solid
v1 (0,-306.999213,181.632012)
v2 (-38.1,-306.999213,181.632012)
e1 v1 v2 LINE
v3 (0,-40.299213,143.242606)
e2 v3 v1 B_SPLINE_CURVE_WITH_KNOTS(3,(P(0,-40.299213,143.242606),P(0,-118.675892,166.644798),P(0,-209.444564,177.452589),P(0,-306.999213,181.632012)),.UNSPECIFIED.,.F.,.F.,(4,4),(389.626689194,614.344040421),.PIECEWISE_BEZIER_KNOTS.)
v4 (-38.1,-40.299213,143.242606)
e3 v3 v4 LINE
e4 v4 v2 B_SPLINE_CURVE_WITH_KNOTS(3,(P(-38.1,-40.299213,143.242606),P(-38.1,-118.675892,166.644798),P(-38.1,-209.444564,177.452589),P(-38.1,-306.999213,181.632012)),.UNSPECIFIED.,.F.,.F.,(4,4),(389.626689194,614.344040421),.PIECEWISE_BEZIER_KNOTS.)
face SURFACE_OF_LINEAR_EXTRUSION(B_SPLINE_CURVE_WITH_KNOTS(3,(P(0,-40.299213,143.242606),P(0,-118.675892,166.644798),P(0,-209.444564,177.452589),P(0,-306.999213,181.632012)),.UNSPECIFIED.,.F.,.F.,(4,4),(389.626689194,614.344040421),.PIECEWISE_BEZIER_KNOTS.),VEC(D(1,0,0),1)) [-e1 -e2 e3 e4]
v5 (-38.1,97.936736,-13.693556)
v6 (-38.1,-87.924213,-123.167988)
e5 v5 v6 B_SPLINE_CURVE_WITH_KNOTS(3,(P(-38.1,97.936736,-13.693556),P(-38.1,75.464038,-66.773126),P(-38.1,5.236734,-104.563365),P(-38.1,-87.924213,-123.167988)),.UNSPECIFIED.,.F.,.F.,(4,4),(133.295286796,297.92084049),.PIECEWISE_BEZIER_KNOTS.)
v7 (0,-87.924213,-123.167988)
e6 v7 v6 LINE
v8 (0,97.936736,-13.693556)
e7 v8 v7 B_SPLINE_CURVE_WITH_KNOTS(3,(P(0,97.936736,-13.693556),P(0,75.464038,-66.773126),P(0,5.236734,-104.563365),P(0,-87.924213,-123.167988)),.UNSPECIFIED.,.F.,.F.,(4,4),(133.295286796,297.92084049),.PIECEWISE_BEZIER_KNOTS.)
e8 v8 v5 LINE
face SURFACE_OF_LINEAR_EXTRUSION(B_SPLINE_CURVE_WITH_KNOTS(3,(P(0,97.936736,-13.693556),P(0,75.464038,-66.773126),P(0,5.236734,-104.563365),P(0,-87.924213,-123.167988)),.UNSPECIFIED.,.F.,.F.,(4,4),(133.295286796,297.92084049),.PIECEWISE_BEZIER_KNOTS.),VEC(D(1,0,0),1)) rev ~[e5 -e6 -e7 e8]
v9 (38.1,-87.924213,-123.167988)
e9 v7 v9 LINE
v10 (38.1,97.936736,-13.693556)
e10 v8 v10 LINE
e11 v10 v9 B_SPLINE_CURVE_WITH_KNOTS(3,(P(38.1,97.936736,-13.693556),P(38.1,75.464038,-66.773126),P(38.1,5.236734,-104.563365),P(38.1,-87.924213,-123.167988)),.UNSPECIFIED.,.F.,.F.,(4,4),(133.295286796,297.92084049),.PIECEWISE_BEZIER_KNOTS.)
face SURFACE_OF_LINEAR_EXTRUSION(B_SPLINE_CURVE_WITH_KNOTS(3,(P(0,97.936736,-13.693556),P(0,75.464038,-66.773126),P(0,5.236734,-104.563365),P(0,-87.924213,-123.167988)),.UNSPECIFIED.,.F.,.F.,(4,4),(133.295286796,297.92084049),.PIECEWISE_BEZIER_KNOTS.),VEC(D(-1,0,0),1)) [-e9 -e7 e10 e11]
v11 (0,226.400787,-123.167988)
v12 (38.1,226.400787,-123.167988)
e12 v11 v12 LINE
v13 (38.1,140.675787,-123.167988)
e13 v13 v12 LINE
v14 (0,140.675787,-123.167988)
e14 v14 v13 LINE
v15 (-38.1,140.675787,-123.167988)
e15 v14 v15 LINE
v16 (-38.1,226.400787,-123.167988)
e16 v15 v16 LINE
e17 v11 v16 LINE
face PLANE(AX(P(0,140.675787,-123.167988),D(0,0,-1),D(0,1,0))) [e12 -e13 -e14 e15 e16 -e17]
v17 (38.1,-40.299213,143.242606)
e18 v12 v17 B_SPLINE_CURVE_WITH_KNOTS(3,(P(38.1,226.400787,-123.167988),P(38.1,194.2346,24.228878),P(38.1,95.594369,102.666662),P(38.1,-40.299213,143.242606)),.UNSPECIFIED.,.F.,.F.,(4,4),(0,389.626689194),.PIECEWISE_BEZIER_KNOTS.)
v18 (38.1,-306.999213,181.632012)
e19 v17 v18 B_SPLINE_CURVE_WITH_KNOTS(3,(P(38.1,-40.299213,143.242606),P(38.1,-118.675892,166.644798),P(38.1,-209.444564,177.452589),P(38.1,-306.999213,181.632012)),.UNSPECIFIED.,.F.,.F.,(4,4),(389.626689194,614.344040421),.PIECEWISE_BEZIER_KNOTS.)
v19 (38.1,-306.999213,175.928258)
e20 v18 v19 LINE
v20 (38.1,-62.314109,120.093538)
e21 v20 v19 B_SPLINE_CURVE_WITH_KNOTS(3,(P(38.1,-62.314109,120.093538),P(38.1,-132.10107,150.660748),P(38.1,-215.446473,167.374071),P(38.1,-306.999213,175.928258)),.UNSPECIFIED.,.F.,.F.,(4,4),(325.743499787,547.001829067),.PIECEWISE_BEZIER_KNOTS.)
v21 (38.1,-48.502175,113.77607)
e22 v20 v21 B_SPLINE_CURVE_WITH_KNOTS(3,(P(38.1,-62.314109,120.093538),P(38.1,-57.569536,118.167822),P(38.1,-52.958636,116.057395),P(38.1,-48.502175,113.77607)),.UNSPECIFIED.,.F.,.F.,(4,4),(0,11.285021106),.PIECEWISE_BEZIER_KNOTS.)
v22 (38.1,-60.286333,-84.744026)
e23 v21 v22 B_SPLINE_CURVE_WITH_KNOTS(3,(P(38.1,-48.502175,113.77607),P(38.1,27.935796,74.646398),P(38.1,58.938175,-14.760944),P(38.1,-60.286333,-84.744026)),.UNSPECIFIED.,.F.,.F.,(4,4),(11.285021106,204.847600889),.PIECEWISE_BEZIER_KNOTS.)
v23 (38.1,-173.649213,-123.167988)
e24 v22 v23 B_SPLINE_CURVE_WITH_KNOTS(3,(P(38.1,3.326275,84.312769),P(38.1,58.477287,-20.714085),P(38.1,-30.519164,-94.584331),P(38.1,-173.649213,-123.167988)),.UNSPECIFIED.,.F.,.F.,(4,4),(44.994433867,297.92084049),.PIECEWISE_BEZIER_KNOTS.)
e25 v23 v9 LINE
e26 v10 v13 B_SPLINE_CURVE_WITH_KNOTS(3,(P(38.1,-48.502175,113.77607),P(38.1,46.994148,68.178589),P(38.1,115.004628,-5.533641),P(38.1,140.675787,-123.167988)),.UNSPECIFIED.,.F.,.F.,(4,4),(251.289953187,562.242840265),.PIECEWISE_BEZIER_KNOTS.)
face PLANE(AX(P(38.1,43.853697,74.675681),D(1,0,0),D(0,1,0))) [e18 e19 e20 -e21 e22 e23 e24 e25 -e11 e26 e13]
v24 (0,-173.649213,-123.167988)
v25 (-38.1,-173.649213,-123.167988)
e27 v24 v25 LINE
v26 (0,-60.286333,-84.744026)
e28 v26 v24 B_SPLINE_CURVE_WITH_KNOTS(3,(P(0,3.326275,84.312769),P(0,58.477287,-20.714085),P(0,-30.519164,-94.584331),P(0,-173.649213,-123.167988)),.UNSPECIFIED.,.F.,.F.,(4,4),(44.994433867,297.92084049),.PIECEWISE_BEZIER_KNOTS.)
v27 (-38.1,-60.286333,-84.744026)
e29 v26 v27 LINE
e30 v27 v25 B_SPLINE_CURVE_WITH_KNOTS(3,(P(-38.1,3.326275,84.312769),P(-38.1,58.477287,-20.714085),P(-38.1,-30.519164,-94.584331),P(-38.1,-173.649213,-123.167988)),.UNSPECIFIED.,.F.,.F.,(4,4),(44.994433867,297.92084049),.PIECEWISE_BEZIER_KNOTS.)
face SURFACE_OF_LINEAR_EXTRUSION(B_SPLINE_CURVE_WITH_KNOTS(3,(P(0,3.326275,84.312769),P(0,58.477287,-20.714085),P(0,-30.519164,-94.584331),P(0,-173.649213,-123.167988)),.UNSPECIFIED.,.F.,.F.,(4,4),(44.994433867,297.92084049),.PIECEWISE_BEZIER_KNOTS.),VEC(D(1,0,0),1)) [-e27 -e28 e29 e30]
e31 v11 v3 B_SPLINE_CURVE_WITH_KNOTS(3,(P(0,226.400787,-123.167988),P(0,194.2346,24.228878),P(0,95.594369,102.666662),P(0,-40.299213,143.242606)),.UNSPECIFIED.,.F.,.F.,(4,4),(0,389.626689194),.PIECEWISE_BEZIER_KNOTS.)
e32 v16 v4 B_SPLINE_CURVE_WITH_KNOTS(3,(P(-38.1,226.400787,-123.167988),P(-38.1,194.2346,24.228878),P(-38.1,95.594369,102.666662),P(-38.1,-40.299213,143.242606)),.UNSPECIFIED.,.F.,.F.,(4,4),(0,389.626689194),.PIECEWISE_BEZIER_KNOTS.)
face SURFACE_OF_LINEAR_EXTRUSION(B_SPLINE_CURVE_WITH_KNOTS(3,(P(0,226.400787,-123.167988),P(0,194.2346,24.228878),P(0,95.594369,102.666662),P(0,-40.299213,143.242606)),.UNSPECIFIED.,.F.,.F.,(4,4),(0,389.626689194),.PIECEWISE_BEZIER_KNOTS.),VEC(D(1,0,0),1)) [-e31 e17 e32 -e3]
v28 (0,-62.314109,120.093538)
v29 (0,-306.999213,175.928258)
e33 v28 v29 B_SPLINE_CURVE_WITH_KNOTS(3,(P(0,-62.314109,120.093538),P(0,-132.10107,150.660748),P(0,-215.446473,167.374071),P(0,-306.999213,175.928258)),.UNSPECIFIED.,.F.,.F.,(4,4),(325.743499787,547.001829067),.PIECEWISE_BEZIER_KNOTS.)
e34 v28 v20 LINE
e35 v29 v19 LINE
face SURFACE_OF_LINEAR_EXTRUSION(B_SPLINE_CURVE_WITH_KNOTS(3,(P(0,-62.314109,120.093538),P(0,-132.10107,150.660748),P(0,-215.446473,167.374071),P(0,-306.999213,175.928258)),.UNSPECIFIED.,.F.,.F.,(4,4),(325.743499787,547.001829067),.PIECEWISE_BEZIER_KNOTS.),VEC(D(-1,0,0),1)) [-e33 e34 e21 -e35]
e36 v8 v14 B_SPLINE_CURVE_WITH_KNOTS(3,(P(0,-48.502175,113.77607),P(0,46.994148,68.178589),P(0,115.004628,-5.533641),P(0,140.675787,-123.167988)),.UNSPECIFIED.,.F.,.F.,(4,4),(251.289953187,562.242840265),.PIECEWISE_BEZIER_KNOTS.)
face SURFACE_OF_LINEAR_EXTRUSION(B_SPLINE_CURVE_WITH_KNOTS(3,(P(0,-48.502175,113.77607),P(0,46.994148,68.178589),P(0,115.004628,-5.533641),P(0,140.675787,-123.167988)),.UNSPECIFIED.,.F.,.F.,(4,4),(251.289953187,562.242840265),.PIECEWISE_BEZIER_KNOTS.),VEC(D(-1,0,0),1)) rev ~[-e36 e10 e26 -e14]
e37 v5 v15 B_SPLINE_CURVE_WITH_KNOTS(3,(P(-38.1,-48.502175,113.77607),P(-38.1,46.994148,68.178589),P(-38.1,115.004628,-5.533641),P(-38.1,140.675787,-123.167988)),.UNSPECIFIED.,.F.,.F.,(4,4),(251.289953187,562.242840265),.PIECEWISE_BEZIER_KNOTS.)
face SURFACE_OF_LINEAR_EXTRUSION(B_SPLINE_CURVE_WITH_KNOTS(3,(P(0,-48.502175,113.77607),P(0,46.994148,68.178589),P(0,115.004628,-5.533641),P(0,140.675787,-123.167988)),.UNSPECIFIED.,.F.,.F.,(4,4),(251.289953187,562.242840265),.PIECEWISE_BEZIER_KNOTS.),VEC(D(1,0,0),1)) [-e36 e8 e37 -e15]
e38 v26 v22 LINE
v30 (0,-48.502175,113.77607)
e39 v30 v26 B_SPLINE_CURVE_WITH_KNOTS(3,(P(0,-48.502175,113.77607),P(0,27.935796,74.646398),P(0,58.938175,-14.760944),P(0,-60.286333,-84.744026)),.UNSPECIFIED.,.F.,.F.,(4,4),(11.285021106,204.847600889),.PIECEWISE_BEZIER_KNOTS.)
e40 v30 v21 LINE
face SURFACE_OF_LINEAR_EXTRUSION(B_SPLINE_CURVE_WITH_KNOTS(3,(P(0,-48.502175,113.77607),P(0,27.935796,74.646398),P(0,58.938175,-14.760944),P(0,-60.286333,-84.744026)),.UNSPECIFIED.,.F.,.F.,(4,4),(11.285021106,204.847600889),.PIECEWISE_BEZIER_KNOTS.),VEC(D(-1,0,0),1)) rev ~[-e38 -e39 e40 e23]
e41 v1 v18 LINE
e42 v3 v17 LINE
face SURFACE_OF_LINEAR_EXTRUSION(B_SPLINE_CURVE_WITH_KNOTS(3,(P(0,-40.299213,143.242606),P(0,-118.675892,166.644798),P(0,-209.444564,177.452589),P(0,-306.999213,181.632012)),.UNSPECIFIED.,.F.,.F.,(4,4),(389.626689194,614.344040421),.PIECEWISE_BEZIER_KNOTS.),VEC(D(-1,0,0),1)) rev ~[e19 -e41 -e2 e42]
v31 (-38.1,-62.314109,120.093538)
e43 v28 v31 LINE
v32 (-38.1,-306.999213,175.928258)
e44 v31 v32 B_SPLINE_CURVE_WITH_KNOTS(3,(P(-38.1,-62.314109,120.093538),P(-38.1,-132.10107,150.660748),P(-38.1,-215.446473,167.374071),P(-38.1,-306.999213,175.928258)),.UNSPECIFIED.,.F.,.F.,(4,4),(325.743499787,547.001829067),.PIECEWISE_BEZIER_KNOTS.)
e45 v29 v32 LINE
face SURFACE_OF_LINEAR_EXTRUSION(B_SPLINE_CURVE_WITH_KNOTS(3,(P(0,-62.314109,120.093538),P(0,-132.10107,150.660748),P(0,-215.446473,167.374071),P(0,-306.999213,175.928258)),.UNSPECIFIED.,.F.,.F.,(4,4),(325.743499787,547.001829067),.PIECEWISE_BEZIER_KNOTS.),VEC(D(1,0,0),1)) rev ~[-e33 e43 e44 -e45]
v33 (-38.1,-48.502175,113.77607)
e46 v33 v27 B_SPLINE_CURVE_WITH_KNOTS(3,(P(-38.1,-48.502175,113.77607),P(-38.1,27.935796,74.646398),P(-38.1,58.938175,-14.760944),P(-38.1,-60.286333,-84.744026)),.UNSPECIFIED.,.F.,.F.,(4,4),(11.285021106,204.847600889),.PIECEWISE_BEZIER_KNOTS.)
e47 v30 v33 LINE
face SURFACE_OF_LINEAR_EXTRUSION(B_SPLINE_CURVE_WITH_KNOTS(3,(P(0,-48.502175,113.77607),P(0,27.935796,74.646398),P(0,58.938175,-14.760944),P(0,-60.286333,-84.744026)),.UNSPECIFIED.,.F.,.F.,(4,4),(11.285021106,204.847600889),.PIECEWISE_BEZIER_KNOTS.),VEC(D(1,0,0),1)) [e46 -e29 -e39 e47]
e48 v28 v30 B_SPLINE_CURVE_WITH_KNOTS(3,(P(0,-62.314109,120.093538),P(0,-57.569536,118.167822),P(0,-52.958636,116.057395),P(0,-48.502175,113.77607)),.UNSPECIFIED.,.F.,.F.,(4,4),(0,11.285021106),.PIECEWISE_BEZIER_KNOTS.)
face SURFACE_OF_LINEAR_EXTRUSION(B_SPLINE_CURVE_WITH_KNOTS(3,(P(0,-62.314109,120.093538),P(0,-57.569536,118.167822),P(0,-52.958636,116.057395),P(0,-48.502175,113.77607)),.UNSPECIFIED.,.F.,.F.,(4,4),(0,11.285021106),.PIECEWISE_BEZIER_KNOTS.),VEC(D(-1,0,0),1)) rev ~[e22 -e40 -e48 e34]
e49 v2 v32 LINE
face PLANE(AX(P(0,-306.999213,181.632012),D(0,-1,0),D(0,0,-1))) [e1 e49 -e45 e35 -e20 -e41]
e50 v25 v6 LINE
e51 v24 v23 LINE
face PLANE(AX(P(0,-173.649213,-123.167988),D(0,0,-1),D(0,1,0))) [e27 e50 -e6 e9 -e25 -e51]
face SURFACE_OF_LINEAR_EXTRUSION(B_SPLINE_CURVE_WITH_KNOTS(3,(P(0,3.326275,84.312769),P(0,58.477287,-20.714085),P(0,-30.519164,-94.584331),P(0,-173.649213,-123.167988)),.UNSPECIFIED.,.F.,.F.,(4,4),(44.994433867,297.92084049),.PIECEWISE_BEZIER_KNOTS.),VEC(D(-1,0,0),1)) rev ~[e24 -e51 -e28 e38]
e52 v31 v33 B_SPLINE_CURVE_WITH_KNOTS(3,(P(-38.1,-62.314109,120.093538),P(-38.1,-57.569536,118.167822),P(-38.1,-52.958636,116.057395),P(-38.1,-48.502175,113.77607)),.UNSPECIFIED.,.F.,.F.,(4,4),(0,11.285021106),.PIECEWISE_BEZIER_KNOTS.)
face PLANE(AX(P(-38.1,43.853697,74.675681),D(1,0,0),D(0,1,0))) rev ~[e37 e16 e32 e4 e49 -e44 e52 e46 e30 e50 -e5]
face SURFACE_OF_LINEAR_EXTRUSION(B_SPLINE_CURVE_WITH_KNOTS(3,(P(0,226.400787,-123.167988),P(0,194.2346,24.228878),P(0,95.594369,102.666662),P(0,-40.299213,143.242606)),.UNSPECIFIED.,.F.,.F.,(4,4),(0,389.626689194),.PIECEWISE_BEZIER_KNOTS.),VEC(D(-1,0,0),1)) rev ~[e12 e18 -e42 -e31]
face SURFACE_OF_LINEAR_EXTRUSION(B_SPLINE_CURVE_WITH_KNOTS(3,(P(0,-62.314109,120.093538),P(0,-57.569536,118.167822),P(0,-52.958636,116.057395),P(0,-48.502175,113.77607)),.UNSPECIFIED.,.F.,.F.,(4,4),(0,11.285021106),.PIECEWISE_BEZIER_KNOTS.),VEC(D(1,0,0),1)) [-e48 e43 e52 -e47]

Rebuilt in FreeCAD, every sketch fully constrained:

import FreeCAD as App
import Part
import Sketcher

V = App.Vector
Q = App.Units.Quantity

doc = App.newDocument("Part")
body = doc.addObject("PartDesign::Body", "Body")

sketch1 = body.newObject("Sketcher::SketchObject", "Sketch")
sketch1.AttachmentSupport = (doc.getObject("YZ_Plane"), [""])
sketch1.MapMode = "FlatFace"
sketch1.addGeometry(Part.LineSegment(V(140.675787, -123.167988, 0), V(226.400787, -123.167988, 0)), False)
sketch1.addGeometry(Part.BSplineCurve([V(226.400787, -123.167988, 0), V(194.2346, 24.228878, 0), V(95.594369, 102.666662, 0), V(-40.299213, 143.242606, 0)], [4, 4], [0, 389.626689194], False, 3, [1, 1, 1, 1], False), False)
sketch1.addGeometry(Part.BSplineCurve([V(-40.299213, 143.242606, 0), V(-118.675892, 166.644798, 0), V(-209.444564, 177.452589, 0), V(-306.999213, 181.632012, 0)], [4, 4], [389.626689194, 614.344040421], False, 3, [1, 1, 1, 1], False), False)
sketch1.addGeometry(Part.LineSegment(V(-306.999213, 181.632012, 0), V(-306.999213, 175.928258, 0)), False)
sketch1.addGeometry(Part.BSplineCurve([V(-62.314109, 120.093538, 0), V(-132.10107, 150.660748, 0), V(-215.446473, 167.374071, 0), V(-306.999213, 175.928258, 0)], [4, 4], [325.743499787, 547.001829067], False, 3, [1, 1, 1, 1], False), False)
sketch1.addGeometry(Part.BSplineCurve([V(-62.314109, 120.093538, 0), V(-57.569536, 118.167822, 0), V(-52.958636, 116.057395, 0), V(-48.502175, 113.77607, 0)], [4, 4], [0, 11.285021106], False, 3, [1, 1, 1, 1], False), False)
sketch1.addGeometry(Part.BSplineCurve([V(-48.502175, 113.77607, 0), V(27.935796, 74.646398, 0), V(58.938175, -14.760944, 0), V(-60.286333, -84.744026, 0)], [4, 4], [11.285021106, 204.847600889], False, 3, [1, 1, 1, 1], False), False)
sketch1.addGeometry(Part.BSplineCurve([V(-60.286333, -84.744026, 0), V(-91.325748, -101.502457, 0), V(-129.966336, -114.444339, 0), V(-173.649213, -123.167988, 0)], [4, 4], [220.72843226, 297.92084049], False, 3, [1, 1, 1, 1], False), False)
sketch1.addGeometry(Part.LineSegment(V(-173.649213, -123.167988, 0), V(-87.924213, -123.167988, 0)), False)
sketch1.addGeometry(Part.BSplineCurve([V(97.936736, -13.693556, 0), V(75.464038, -66.773126, 0), V(5.236734, -104.563365, 0), V(-87.924213, -123.167988, 0)], [4, 4], [133.295286796, 297.92084049], False, 3, [1, 1, 1, 1], False), False)
sketch1.addGeometry(Part.BSplineCurve([V(97.936736, -13.693556, 0), V(117.085061, -45.111729, 0), V(131.553574, -81.366777, 0), V(140.675787, -123.167988, 0)], [4, 4], [451.746138154, 562.242840265], False, 3, [1, 1, 1, 1], False), False)
sketch1.addConstraint(Sketcher.Constraint("Block", 1))
sketch1.addConstraint(Sketcher.Constraint("Block", 2))
sketch1.addConstraint(Sketcher.Constraint("Block", 4))
sketch1.addConstraint(Sketcher.Constraint("Block", 5))
sketch1.addConstraint(Sketcher.Constraint("Block", 6))
sketch1.addConstraint(Sketcher.Constraint("Block", 7))
sketch1.addConstraint(Sketcher.Constraint("Block", 9))
sketch1.addConstraint(Sketcher.Constraint("Block", 10))
sketch1.addConstraint(Sketcher.Constraint("Coincident", 0, 2, 1, 1))
sketch1.addConstraint(Sketcher.Constraint("Coincident", 2, 2, 3, 1))
sketch1.addConstraint(Sketcher.Constraint("Coincident", 3, 2, 4, 2))
sketch1.addConstraint(Sketcher.Constraint("Coincident", 7, 2, 8, 1))
sketch1.addConstraint(Sketcher.Constraint("Coincident", 8, 2, 9, 2))
sketch1.addConstraint(Sketcher.Constraint("Coincident", 10, 2, 0, 1))
pad1 = body.newObject("PartDesign::Pad", "Pad")
pad1.Profile = sketch1
pad1.Type = "TwoLengths"
pad1.Length = Q("1.5 in")
pad1.Length2 = Q("1.5 in")

doc.recompute()
